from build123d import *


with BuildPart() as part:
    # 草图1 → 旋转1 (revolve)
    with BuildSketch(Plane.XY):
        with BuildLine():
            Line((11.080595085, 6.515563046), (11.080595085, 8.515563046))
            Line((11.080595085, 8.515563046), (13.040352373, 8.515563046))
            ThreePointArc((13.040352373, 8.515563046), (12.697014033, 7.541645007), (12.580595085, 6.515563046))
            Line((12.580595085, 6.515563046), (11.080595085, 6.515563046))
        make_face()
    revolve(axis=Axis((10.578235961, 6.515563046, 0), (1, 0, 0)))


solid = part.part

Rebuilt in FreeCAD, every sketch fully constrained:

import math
import FreeCAD as App
import Part
import Sketcher
Q = App.Units.Quantity

doc = App.newDocument("Part")
params = doc.addObject("Spreadsheet::Sheet", "Params")
for row, (alias, value) in enumerate([
    ("sketch1_height", "2 mm"),
    ("sketch1_radius", "4.58 mm"),
    ("sketch1_width", "1.5 mm"),
    ("revolution_angle", "360 deg"),
], start=1):
    params.set(f"A{row}", alias)
    params.set(f"B{row}", "=" + value)
    params.setAlias(f"B{row}", alias)

body = doc.addObject("PartDesign::Body", "Body")

# Sketch on XY plane
sketch1 = doc.addObject("Sketcher::SketchObject", "Sketch")
body.addObject(sketch1)
sketch1.AttachmentSupport = (doc.XY_Plane, [""])
sketch1.MapMode = "FlatFace"
sketch1.addGeometry([
    Part.LineSegment(App.Vector(11.1, 8.5, 0), App.Vector(11.1, 6.5, 0)),
    Part.LineSegment(App.Vector(11.1, 6.5, 0), App.Vector(12.6, 6.5, 0)),
    Part.ArcOfCircle(Part.Circle(App.Vector(17.2, 6.5, 0), App.Vector(0, 0, 1), 4.6), math.radians(154), math.radians(180)),
    Part.LineSegment(App.Vector(13, 8.5, 0), App.Vector(11.1, 8.5, 0)),
], False)
sketch1.addGeometry(Part.LineSegment(App.Vector(11.1, 6.5, 0), App.Vector(17.2, 6.5, 0)), True)  # axis
sketch1.addConstraint([
    Sketcher.Constraint("Coincident", 0, 2, 1, 1),
    Sketcher.Constraint("Coincident", 1, 2, 2, 2),
    Sketcher.Constraint("Coincident", 2, 1, 3, 1),
    Sketcher.Constraint("Coincident", 3, 2, 0, 1),
    Sketcher.Constraint("Vertical", 0),
    Sketcher.Constraint("Horizontal", 1),
    Sketcher.Constraint("Horizontal", 3),
    Sketcher.Constraint("Horizontal", 4),
    Sketcher.Constraint("Coincident", 4, 1, 0, 2),
    Sketcher.Constraint("Coincident", 4, 2, 2, 3),
    Sketcher.Constraint("DistanceY", 0, 2, 0, 1, Q("2 mm")),
    Sketcher.Constraint("Radius", 2, Q("4.58 mm")),
    Sketcher.Constraint("DistanceX", 1, 1, 1, 2, Q("1.5 mm")),
    Sketcher.Constraint("DistanceX", -1, 1, 2, 3, Q("17.160595 mm")),
    Sketcher.Constraint("DistanceY", -1, 1, 2, 3, Q("6.515563 mm")),
])
sketch1.setExpression("Constraints[10]", "Params.sketch1_height")
sketch1.setExpression("Constraints[11]", "Params.sketch1_radius")
sketch1.setExpression("Constraints[12]", "Params.sketch1_width")
revolution = doc.addObject("PartDesign::Revolution", "Revolution")
body.addObject(revolution)
revolution.Profile = sketch1
revolution.ReferenceAxis = (sketch1, ["Axis0"])
revolution.setExpression("Angle", "Params.revolution_angle")

doc.recompute()
